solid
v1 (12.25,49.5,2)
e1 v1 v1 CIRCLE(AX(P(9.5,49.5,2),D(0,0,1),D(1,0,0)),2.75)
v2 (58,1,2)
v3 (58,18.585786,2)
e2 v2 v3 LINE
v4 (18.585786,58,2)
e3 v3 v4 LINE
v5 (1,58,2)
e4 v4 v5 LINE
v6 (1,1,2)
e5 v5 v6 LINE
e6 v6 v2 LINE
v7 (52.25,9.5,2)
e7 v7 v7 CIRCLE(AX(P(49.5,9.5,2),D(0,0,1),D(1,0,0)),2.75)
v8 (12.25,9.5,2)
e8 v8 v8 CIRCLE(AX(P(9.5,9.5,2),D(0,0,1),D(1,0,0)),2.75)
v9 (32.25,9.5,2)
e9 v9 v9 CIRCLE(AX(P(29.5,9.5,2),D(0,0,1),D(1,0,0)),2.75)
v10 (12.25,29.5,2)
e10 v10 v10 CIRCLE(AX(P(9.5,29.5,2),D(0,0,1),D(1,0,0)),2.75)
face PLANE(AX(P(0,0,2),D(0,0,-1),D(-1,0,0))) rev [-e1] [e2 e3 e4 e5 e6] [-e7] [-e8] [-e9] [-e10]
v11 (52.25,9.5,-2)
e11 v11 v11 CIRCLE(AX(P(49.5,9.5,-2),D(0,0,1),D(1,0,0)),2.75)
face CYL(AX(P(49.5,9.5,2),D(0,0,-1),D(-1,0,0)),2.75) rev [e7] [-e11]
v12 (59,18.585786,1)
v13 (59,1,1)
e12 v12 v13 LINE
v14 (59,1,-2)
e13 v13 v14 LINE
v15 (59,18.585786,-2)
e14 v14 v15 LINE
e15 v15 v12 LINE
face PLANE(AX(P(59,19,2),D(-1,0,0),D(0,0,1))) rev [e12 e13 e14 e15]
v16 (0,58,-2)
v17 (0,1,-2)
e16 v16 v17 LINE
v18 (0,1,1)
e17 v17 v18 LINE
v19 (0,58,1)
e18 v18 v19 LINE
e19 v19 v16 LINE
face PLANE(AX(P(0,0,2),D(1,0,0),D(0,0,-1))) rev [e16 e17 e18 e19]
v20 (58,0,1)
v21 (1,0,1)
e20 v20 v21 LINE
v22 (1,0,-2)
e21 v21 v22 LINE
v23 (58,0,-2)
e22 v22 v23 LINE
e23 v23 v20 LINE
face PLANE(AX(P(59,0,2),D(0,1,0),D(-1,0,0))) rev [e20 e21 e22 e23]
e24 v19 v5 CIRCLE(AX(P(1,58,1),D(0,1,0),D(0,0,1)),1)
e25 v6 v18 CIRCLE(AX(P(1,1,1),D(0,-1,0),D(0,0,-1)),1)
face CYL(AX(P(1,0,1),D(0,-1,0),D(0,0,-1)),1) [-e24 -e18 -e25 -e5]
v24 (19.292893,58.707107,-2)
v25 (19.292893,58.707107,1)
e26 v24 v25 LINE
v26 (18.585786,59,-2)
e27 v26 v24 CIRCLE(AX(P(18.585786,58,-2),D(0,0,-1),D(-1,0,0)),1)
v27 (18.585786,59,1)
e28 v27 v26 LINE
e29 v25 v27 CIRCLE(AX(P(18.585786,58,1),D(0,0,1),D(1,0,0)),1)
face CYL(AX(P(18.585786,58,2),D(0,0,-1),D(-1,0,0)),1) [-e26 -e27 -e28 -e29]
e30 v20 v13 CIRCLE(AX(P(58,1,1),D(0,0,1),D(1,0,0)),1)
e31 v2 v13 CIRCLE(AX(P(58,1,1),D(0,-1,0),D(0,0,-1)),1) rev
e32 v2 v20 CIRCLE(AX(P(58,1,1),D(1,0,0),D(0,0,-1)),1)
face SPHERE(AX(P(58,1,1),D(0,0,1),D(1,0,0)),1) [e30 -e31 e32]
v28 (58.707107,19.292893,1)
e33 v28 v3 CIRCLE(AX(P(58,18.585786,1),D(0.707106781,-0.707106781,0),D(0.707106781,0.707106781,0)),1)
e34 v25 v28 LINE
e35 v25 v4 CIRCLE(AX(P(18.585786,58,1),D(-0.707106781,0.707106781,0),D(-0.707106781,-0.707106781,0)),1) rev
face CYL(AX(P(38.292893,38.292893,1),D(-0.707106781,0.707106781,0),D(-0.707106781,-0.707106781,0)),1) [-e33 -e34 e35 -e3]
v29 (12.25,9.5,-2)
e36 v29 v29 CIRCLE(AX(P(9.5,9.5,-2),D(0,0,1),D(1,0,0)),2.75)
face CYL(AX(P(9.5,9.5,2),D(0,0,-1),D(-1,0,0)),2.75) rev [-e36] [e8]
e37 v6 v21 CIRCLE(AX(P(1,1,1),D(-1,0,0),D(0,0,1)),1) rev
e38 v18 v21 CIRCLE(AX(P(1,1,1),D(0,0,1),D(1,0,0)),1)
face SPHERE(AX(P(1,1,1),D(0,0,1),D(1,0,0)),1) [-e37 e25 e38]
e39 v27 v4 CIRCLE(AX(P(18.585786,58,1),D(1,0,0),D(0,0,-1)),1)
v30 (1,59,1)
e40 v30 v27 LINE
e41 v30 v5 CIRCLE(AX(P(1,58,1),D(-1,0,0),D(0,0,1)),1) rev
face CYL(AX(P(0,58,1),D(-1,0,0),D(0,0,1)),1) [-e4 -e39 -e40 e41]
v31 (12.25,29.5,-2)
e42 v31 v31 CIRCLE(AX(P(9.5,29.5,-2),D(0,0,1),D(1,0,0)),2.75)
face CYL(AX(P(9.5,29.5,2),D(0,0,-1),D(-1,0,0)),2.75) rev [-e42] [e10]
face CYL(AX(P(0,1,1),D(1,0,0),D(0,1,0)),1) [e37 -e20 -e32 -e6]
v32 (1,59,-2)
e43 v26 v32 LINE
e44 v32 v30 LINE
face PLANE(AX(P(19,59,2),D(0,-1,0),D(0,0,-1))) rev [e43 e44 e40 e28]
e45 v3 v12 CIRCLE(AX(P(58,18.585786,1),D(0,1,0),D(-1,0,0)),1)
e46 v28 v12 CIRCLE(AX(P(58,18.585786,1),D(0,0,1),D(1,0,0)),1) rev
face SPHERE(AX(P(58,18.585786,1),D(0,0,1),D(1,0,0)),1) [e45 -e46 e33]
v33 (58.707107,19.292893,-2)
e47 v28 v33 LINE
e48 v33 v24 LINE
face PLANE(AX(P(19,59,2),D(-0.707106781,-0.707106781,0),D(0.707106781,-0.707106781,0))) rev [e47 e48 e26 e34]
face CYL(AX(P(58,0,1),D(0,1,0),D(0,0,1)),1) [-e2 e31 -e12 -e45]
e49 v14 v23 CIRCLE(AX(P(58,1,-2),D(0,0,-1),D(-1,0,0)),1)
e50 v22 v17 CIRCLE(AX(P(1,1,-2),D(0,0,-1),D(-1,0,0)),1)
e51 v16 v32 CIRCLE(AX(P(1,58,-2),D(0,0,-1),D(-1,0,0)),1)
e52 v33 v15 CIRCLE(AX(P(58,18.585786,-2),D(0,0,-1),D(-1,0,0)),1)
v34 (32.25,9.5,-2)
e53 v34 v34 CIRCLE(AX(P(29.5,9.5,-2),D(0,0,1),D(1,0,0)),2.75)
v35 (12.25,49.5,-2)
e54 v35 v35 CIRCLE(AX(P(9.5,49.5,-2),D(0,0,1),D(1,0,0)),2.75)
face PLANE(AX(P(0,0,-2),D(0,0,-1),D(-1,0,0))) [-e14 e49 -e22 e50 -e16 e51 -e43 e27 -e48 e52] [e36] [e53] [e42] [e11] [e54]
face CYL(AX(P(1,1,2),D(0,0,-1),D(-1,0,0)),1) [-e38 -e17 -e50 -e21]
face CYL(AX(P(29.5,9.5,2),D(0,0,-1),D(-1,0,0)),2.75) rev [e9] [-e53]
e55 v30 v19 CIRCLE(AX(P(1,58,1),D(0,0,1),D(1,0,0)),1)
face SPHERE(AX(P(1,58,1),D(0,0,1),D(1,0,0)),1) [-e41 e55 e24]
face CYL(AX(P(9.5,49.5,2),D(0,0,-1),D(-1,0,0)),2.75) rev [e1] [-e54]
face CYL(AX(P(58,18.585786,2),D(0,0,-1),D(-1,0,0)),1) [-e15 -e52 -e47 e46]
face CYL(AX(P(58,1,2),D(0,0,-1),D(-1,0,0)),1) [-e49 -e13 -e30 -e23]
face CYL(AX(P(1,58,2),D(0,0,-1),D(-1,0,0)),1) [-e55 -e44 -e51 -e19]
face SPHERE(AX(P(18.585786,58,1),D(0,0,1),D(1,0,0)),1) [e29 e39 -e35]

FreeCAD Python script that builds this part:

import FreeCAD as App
import Part
import Sketcher
Q = App.Units.Quantity


def edges_at(feature, points):
    """Names of the edges that pass closest to the given points."""
    edges = feature.Shape.Edges
    near = lambda p: min(range(len(edges)), key=lambda i: edges[i].distToShape(Part.Vertex(*p))[0])
    return sorted({f"Edge{near(p) + 1}" for p in points})


def add_polygon(sketch, points):
    """Adds a closed chain of lines whose ends are joined by coincident constraints."""
    first, n = sketch.GeometryCount, len(points)
    for a, b in zip(points, points[1:] + points[:1]):
        sketch.addGeometry(Part.LineSegment(App.Vector(*a, 0), App.Vector(*b, 0)), False)
    for i in range(n):
        sketch.addConstraint(Sketcher.Constraint("Coincident", first + i, 2, first + (i + 1) % n, 1))

doc = App.newDocument("Part")
body = doc.addObject("PartDesign::Body", "Body")

# Sketch on XY plane
sketch1 = doc.addObject("Sketcher::SketchObject", "Sketch")
body.addObject(sketch1)
sketch1.AttachmentSupport = (doc.XY_Plane, [""])
sketch1.MapMode = "FlatFace"
add_polygon(sketch1, [(0, 59), (0, 0), (59, 0), (59, 19), (19, 59)])  # lines 0-4
sketch1.addGeometry(Part.Circle(App.Vector(49.5, 9.5, 0), App.Vector(0, 0, 1), 2.8), False)  # 5
sketch1.addGeometry(Part.Circle(App.Vector(29.5, 9.5, 0), App.Vector(0, 0, 1), 2.8), False)  # 6
sketch1.addGeometry(Part.Circle(App.Vector(9.5, 9.5, 0), App.Vector(0, 0, 1), 2.8), False)  # 7
sketch1.addGeometry(Part.Circle(App.Vector(9.5, 29.5, 0), App.Vector(0, 0, 1), 2.8), False)  # 8
sketch1.addGeometry(Part.Circle(App.Vector(9.5, 49.5, 0), App.Vector(0, 0, 1), 2.8), False)  # 9
sketch1.addConstraint([
    Sketcher.Constraint("Vertical", 0),
    Sketcher.Constraint("Horizontal", 1),
    Sketcher.Constraint("Vertical", 2),
    Sketcher.Constraint("Horizontal", 4),
    Sketcher.Constraint("Coincident", 0, 2, -1, 1),
    Sketcher.Constraint("Equal", 5, 6),
    Sketcher.Constraint("Equal", 6, 7),
    Sketcher.Constraint("Equal", 7, 8),
    Sketcher.Constraint("Equal", 8, 9),
    Sketcher.Constraint("Horizontal", 5, 3, 6, 3),
    Sketcher.Constraint("Horizontal", 6, 3, 7, 3),
    Sketcher.Constraint("Vertical", 7, 3, 8, 3),
    Sketcher.Constraint("Vertical", 8, 3, 9, 3),
    Sketcher.Constraint("Equal", 1, 0),
    Sketcher.Constraint("Equal", 4, 2),
    Sketcher.Constraint("Diameter", 5, Q("5.5 mm")),
    Sketcher.Constraint("DistanceX", 1, 1, 1, 2, Q("59 mm")),
    Sketcher.Constraint("DistanceX", 4, 2, 4, 1, Q("19 mm")),
    Sketcher.Constraint("DistanceX", 6, 3, 5, 3, Q("20 mm")),
    Sketcher.Constraint("DistanceX", 7, 3, 6, 3, Q("20 mm")),
    Sketcher.Constraint("DistanceY", 7, 3, 8, 3, Q("20 mm")),
    Sketcher.Constraint("DistanceY", 8, 3, 9, 3, Q("20 mm")),
    Sketcher.Constraint("DistanceX", -1, 1, 5, 3, Q("49.5 mm")),
    Sketcher.Constraint("DistanceY", -1, 1, 5, 3, Q("9.5 mm")),
])
pad1 = doc.addObject("PartDesign::Pad", "Pad")
body.addObject(pad1)
pad1.Profile = sketch1
pad1.Length = 4
pad1.Midplane = True
doc.recompute()

fillet = doc.addObject("PartDesign::Fillet", "Fillet")
body.addObject(fillet)
fillet.Base = (pad1, edges_at(pad1, [
    (39, 39, 2),
    (9.5, 59, 2),
    (0, 29.5, 2),
    (29.5, 0, 2),
    (59, 9.5, 2),
    (0, 0, 0),
    (0, 59, 0),
    (19, 59, 0),
    (59, 19, 0),
    (59, 0, 0),
]))
fillet.Radius = 1

doc.recompute()
